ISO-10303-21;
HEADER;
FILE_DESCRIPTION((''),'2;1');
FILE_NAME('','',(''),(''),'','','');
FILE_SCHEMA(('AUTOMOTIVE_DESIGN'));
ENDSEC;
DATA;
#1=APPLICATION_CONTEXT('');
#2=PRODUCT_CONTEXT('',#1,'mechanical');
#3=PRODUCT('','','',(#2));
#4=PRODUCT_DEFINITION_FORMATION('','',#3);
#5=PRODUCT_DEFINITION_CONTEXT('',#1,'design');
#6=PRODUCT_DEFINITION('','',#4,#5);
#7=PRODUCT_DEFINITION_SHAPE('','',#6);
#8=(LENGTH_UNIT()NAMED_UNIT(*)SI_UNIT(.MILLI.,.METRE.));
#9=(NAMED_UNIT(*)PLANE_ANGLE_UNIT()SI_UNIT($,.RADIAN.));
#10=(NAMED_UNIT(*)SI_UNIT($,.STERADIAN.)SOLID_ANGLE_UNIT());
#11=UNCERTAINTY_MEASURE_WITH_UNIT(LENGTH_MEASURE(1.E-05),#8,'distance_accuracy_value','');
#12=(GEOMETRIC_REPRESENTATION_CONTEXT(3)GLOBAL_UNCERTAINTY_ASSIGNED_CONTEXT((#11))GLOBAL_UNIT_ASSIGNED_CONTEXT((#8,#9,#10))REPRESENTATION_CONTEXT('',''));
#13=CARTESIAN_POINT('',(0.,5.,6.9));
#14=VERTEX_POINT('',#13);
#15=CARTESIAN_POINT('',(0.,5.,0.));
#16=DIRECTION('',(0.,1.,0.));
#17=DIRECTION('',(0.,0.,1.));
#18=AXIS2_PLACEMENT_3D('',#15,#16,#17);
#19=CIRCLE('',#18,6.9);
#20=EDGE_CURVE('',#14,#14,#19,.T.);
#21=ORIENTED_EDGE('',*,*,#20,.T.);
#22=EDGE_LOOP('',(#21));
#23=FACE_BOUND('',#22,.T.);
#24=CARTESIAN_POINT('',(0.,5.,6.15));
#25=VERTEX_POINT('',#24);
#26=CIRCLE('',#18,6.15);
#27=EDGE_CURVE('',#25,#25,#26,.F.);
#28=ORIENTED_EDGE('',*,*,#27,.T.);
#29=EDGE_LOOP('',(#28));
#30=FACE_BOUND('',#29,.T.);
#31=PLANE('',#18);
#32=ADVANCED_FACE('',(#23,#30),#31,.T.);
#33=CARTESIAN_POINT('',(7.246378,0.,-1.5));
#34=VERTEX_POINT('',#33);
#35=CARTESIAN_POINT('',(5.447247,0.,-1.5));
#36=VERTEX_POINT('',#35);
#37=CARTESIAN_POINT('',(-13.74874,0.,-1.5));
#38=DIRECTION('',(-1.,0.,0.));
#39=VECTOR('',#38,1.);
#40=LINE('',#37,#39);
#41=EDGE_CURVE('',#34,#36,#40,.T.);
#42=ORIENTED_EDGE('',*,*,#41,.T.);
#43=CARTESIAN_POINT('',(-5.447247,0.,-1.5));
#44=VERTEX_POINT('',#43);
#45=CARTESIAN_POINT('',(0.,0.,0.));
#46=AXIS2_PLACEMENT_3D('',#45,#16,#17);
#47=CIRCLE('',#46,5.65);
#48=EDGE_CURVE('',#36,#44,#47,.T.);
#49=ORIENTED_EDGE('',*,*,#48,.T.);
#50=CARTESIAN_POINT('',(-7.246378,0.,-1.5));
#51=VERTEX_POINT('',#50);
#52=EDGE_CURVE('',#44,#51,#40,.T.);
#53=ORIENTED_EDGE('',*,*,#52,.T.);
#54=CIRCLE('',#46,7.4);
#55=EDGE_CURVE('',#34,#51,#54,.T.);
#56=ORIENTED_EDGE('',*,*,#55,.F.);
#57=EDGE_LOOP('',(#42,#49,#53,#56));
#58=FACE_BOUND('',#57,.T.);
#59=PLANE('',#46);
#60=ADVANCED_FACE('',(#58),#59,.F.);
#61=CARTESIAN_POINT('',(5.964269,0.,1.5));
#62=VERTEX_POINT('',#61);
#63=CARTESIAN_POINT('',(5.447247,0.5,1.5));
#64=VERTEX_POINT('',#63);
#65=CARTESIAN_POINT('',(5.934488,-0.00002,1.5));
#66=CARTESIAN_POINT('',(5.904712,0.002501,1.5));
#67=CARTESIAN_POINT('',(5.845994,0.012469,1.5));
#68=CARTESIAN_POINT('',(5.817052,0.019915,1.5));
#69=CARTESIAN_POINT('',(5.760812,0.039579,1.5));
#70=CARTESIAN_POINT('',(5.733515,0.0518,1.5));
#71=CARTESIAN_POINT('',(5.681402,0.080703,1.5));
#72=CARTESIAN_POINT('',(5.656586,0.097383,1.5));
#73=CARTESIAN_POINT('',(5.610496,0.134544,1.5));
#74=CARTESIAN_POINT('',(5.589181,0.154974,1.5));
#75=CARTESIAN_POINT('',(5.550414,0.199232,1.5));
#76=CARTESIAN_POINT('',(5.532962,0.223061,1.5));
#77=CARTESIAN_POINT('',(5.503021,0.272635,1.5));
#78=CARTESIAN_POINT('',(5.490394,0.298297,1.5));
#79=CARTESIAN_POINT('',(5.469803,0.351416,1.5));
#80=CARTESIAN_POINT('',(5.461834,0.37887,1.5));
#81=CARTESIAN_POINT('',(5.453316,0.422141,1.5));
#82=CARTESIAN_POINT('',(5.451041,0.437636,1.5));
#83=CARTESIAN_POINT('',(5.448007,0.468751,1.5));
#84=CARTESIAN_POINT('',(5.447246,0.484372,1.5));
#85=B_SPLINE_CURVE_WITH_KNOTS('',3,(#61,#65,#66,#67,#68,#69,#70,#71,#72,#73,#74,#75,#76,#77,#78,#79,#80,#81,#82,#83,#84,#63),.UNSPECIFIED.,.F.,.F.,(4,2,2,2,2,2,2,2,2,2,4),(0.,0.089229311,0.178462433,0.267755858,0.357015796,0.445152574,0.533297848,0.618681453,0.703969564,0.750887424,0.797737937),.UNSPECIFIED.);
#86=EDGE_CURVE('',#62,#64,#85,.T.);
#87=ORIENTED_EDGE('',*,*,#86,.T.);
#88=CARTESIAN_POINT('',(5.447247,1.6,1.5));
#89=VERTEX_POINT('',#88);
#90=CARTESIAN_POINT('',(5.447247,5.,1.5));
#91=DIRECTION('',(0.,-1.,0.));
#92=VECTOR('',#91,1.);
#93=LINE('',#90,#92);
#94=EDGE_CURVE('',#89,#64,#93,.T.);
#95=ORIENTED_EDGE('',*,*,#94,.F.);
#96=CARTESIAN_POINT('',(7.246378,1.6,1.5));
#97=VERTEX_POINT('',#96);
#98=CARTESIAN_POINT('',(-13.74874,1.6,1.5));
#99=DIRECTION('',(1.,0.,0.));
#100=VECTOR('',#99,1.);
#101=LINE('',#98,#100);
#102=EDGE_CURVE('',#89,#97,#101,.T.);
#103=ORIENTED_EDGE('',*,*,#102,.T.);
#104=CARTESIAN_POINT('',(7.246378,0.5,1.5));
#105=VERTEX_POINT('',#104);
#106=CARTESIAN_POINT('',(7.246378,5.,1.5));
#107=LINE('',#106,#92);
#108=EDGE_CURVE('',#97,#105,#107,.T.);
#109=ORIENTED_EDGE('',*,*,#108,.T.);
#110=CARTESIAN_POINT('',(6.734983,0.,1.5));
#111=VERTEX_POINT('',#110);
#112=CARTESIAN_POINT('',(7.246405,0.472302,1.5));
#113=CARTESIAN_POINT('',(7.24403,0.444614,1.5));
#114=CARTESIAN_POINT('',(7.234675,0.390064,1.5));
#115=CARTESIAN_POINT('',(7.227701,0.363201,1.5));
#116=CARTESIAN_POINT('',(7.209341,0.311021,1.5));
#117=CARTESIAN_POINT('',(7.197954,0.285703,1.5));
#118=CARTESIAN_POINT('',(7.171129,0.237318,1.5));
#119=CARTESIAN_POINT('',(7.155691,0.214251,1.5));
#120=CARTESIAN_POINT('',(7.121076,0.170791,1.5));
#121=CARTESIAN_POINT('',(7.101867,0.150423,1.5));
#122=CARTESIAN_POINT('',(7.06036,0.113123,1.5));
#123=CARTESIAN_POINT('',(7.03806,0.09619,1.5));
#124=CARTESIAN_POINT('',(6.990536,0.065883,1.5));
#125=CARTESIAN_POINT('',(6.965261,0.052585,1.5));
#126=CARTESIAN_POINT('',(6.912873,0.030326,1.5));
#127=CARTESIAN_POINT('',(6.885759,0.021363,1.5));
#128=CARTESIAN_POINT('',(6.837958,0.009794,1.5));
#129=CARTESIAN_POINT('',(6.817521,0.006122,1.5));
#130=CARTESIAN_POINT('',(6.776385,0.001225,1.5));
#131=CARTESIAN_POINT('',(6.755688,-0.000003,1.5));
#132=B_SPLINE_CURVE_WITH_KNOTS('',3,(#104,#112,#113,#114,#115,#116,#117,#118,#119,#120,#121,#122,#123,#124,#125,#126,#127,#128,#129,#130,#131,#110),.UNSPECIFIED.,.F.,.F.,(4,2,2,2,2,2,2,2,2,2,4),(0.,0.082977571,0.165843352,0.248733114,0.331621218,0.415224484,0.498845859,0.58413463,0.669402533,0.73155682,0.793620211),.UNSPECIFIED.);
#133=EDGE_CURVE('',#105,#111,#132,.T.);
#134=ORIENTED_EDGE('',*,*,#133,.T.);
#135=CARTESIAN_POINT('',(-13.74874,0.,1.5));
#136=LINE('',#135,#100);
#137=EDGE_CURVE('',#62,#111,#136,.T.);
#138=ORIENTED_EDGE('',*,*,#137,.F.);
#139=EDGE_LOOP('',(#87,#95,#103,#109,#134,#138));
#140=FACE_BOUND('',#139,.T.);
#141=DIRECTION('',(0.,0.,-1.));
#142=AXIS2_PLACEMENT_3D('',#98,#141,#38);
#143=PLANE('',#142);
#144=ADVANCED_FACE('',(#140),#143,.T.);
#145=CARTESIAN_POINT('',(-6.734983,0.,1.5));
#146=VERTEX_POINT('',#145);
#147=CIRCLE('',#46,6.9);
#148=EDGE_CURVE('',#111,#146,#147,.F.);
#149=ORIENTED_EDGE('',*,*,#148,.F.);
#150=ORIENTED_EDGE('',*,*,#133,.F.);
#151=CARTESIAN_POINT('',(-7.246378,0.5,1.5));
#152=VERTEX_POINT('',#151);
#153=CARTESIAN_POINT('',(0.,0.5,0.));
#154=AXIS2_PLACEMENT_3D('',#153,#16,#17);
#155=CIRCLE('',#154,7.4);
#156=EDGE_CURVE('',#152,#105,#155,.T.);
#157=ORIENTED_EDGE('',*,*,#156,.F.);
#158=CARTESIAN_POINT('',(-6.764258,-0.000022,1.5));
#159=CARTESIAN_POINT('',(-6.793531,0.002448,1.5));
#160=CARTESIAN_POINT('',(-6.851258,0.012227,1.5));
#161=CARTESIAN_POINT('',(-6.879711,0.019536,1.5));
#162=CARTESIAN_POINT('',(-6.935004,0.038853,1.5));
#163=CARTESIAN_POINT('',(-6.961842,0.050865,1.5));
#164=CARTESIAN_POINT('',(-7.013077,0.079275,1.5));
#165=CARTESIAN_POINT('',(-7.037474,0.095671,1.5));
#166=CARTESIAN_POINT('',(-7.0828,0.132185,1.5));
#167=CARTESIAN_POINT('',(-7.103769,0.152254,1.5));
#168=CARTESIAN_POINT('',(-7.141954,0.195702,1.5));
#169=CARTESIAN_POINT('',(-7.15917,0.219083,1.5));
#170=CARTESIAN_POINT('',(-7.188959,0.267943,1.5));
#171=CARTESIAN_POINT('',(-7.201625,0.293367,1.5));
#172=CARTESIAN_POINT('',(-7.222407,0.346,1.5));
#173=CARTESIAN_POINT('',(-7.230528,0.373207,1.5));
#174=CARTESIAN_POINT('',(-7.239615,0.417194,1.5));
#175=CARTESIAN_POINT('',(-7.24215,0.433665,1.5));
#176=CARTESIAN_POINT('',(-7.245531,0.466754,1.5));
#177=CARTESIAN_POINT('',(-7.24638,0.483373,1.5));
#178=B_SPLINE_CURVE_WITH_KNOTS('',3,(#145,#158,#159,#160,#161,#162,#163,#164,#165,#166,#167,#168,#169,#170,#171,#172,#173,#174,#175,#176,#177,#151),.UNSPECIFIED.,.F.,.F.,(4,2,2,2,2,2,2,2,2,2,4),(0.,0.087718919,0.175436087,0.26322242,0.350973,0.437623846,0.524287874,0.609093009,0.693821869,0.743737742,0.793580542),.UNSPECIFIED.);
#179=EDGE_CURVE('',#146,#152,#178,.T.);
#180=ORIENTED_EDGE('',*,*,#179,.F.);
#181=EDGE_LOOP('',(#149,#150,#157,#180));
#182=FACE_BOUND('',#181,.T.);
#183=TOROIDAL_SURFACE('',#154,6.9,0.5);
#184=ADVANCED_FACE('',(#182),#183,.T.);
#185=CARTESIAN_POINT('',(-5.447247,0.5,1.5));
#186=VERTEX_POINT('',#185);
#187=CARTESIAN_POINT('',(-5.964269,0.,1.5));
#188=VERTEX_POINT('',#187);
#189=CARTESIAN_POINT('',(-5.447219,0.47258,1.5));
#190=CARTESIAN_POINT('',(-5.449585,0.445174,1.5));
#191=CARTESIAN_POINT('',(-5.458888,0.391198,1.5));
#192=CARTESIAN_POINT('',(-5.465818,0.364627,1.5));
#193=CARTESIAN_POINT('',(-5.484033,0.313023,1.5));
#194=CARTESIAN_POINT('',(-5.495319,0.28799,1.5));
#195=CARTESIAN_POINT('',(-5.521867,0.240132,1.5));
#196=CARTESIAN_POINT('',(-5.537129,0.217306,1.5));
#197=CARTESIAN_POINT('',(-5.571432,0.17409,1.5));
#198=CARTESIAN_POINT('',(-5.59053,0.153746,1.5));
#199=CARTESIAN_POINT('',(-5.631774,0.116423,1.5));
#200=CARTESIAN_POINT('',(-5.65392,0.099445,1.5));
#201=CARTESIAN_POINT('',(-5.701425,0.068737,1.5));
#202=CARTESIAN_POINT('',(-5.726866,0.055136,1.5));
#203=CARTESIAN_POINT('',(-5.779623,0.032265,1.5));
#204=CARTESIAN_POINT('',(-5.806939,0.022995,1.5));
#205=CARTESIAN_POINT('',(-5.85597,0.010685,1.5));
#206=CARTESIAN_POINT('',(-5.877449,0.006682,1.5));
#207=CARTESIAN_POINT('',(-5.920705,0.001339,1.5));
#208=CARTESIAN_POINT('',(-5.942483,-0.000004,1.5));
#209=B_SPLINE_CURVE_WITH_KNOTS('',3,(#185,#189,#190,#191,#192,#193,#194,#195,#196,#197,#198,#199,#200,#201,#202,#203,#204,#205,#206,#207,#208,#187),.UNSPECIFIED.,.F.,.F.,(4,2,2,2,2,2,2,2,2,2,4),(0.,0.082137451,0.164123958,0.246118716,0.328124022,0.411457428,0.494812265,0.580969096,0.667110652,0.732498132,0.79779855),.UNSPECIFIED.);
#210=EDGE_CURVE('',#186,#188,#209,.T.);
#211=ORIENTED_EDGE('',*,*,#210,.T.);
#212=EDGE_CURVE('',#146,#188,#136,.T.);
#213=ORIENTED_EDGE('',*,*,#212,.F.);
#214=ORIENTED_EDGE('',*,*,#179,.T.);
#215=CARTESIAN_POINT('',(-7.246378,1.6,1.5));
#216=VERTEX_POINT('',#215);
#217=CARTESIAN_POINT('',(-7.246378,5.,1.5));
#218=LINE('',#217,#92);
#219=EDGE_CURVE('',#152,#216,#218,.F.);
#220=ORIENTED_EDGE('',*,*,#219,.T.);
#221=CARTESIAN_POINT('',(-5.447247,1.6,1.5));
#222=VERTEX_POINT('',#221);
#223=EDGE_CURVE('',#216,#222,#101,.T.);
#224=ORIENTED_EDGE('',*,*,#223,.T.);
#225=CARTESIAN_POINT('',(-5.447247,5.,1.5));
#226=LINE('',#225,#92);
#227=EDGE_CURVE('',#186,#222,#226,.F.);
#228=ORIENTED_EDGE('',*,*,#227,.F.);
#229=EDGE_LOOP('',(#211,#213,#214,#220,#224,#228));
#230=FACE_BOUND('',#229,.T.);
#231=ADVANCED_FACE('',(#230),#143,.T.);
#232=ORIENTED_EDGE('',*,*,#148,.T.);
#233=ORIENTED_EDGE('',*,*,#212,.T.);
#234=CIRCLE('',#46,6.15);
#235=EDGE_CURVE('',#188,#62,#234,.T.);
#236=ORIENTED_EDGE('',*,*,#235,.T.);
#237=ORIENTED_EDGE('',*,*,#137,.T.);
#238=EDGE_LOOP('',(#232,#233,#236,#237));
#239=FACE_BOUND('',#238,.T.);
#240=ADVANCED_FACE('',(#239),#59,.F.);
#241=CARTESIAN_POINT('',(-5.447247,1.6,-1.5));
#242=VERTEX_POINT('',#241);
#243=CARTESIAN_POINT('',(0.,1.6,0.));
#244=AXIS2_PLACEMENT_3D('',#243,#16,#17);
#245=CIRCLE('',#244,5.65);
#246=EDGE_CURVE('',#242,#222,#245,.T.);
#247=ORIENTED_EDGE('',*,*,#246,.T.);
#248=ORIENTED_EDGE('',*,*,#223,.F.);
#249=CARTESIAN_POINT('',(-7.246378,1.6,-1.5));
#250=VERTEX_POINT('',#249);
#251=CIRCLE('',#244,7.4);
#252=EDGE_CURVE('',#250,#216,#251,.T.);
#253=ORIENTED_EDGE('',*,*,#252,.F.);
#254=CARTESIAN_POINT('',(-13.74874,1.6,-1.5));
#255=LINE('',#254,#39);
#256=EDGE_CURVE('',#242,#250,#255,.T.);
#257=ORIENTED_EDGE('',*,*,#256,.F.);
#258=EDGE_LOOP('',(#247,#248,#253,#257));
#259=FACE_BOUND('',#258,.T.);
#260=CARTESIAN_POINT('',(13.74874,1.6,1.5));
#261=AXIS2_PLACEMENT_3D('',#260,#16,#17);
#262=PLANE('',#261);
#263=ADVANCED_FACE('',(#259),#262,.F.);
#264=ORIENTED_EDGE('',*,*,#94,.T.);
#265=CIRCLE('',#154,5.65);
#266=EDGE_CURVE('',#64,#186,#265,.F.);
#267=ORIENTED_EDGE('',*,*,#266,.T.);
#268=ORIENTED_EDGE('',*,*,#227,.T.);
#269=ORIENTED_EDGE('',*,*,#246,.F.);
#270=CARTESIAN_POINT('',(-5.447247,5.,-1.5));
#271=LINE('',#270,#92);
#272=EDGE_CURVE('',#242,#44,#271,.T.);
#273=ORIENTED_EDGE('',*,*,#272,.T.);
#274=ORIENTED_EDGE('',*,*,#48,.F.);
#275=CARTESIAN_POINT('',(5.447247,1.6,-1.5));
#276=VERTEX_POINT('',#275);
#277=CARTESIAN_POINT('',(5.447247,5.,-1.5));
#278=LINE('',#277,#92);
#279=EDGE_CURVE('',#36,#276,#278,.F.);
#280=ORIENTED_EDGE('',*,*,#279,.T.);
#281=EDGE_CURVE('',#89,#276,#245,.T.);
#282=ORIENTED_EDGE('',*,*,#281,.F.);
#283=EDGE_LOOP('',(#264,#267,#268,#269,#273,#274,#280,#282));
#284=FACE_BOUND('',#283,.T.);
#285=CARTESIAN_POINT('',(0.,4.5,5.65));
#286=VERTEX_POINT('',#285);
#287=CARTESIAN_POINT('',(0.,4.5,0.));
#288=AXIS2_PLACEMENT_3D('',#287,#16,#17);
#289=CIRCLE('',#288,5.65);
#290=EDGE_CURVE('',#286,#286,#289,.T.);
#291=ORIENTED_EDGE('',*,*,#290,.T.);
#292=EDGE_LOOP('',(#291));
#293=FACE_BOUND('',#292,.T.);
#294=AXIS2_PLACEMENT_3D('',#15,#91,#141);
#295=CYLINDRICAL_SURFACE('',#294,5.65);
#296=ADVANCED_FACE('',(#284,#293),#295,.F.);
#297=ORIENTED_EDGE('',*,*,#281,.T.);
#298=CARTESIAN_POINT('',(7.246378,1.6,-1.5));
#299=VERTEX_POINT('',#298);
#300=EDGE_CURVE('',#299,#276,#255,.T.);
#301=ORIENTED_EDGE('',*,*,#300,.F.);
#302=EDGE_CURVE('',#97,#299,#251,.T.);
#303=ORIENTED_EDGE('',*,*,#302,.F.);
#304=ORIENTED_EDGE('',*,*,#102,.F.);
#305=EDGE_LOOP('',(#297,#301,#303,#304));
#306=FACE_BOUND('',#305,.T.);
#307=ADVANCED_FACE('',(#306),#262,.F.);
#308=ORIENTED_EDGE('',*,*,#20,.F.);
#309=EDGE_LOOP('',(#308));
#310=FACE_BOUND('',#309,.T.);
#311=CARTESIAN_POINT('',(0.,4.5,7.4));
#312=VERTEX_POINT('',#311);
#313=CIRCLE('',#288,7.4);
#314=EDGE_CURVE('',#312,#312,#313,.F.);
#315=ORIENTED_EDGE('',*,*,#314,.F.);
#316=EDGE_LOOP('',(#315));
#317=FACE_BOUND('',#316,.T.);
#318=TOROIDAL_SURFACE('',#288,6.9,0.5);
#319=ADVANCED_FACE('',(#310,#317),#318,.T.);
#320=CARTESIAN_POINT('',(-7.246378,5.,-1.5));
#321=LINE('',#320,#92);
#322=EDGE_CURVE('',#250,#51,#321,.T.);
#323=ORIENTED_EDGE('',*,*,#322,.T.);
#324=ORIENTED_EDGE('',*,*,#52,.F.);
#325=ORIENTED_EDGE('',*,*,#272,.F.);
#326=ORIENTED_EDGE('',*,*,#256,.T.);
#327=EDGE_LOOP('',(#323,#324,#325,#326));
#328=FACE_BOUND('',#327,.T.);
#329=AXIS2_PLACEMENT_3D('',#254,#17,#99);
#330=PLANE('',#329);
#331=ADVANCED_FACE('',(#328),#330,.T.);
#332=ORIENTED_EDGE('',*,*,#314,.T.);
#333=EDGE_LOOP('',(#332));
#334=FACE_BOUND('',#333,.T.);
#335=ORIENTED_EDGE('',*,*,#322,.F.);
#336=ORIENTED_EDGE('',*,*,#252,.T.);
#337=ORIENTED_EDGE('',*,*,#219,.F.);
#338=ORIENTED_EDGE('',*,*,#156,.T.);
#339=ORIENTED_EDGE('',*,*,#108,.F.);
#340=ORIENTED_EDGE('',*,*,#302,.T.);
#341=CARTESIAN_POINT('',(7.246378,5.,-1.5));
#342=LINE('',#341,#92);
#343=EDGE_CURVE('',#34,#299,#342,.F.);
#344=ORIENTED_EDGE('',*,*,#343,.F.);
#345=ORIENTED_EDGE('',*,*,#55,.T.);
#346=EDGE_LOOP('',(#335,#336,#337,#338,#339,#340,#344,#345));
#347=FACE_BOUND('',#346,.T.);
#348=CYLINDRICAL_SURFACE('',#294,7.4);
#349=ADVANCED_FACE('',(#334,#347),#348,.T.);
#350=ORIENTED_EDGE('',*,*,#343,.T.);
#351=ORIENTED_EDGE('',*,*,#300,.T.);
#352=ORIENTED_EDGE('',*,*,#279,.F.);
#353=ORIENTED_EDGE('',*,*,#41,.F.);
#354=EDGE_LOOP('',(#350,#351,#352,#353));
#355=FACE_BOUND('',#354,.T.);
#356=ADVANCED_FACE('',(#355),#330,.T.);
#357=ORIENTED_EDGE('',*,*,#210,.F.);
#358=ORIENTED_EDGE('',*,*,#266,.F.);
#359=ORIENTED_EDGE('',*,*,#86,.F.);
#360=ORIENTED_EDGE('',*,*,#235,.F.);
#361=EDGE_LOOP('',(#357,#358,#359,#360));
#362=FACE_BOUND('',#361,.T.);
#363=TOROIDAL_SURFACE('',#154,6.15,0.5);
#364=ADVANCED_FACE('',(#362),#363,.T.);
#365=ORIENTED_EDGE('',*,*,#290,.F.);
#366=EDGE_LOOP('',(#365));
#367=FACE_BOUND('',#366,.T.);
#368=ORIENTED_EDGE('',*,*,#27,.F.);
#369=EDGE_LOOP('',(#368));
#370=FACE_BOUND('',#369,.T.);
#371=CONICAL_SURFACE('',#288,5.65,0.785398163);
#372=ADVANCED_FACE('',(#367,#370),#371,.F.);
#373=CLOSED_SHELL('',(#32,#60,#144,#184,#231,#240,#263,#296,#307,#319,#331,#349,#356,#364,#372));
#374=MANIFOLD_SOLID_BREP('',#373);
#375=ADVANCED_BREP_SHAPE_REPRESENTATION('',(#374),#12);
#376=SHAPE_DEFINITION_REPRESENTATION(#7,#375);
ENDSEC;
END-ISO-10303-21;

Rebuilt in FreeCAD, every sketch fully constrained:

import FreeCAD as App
import Part
import Sketcher


def edges_at(feature, points):
    """Names of the edges that pass closest to the given points."""
    edges = feature.Shape.Edges
    near = lambda p: min(range(len(edges)), key=lambda i: edges[i].distToShape(Part.Vertex(*p))[0])
    return sorted({f"Edge{near(p) + 1}" for p in points})


def add_polygon(sketch, points):
    """Adds a closed chain of lines whose ends are joined by coincident constraints."""
    first, n = sketch.GeometryCount, len(points)
    for a, b in zip(points, points[1:] + points[:1]):
        sketch.addGeometry(Part.LineSegment(App.Vector(*a, 0), App.Vector(*b, 0)), False)
    for i in range(n):
        sketch.addConstraint(Sketcher.Constraint("Coincident", first + i, 2, first + (i + 1) % n, 1))

doc = App.newDocument("Part")
body = doc.addObject("PartDesign::Body", "Body")

sketch1 = body.newObject("Sketcher::SketchObject", "Sketch")
sketch1.AttachmentSupport = (doc.getObject("XZ_Plane"), [""])
sketch1.MapMode = "FlatFace"
sketch1.addGeometry([
    Part.Circle(App.Vector(0, 0, 0), App.Vector(0, 0, 1), 7),
    Part.Circle(App.Vector(0, 0, 0), App.Vector(0, 0, 1), 6),
], False)
sketch1.addConstraint([
    Sketcher.Constraint("Coincident", 0, 3, -1, 1),
    Sketcher.Constraint("Coincident", 1, 3, -1, 1),
    Sketcher.Constraint("Diameter", 0, 14.8),
    Sketcher.Constraint("Diameter", 1, 11.3),
])
pad1 = body.newObject("PartDesign::Pad", "Pad")
pad1.Profile = sketch1
pad1.Length = 5
pad1.Reversed = True

sketch2 = body.newObject("Sketcher::SketchObject", "Sketch001")
sketch2.AttachmentSupport = (doc.getObject("XZ_Plane"), [""])
sketch2.MapMode = "FlatFace"
add_polygon(sketch2, [(-13.7, -1.5), (-13.7, 1.5), (13.7, 1.5), (13.7, -1.5)])
sketch2.addConstraint([
    Sketcher.Constraint("Vertical", 0),
    Sketcher.Constraint("Horizontal", 1),
    Sketcher.Constraint("Vertical", 2),
    Sketcher.Constraint("Horizontal", 3),
    Sketcher.Constraint("Symmetric", 0, 2, 2, 2, -1, 1),
    Sketcher.Constraint("DistanceY", 0, 1, 0, 2, 3.0),
    Sketcher.Constraint("DistanceX", 1, 1, 1, 2, 27.497481),
])
pocket1 = body.newObject("PartDesign::Pocket", "Pocket")
pocket1.Profile = sketch2
pocket1.Length = 1.6
doc.recompute()

fillet = body.newObject("PartDesign::Fillet", "Fillet")
fillet.Base = (pocket1, edges_at(pocket1, [(-3.424, 0, 4.494), (4.672, 0, 5.738), (0, 5, -7.4)]))
fillet.Radius = 0.5
doc.recompute()

chamfer = body.newObject("PartDesign::Chamfer", "Chamfer")
chamfer.Base = (fillet, edges_at(fillet, [(0, 5, -5.65)]))
chamfer.Size = 0.5

doc.recompute()
